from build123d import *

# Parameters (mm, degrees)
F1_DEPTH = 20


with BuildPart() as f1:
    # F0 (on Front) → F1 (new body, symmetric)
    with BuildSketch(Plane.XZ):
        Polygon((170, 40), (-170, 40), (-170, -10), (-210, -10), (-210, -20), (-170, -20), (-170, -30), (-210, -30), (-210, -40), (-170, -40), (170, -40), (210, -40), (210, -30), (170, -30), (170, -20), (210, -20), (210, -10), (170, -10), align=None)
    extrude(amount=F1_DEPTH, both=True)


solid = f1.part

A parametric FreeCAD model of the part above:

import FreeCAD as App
import Part
import Sketcher
Q = App.Units.Quantity

doc = App.newDocument("Part")
body = doc.addObject("PartDesign::Body", "Body")

sketch1 = body.newObject("Sketcher::SketchObject", "Sketch")
sketch1.AttachmentSupport = (doc.getObject("XZ_Plane"), [""])
sketch1.MapMode = "FlatFace"
sketch1.addGeometry([
    Part.LineSegment(App.Vector(170, 40, 0), App.Vector(-170, 40, 0)),
    Part.LineSegment(App.Vector(-170, 40, 0), App.Vector(-170, -10, 0)),
    Part.LineSegment(App.Vector(-170, -10, 0), App.Vector(-210, -10, 0)),
    Part.LineSegment(App.Vector(-210, -10, 0), App.Vector(-210, -20, 0)),
    Part.LineSegment(App.Vector(-210, -20, 0), App.Vector(-170, -20, 0)),
    Part.LineSegment(App.Vector(-170, -20, 0), App.Vector(-170, -30, 0)),
    Part.LineSegment(App.Vector(-170, -30, 0), App.Vector(-210, -30, 0)),
    Part.LineSegment(App.Vector(-210, -30, 0), App.Vector(-210, -40, 0)),
    Part.LineSegment(App.Vector(-210, -40, 0), App.Vector(210, -40, 0)),
    Part.LineSegment(App.Vector(210, -40, 0), App.Vector(210, -30, 0)),
    Part.LineSegment(App.Vector(210, -30, 0), App.Vector(170, -30, 0)),
    Part.LineSegment(App.Vector(170, -30, 0), App.Vector(170, -20, 0)),
    Part.LineSegment(App.Vector(170, -20, 0), App.Vector(210, -20, 0)),
    Part.LineSegment(App.Vector(210, -20, 0), App.Vector(210, -10, 0)),
    Part.LineSegment(App.Vector(210, -10, 0), App.Vector(170, -10, 0)),
    Part.LineSegment(App.Vector(170, -10, 0), App.Vector(170, 40, 0)),
], False)
sketch1.addConstraint([
    Sketcher.Constraint("Coincident", 0, 2, 1, 1),
    Sketcher.Constraint("Coincident", 1, 2, 2, 1),
    Sketcher.Constraint("Coincident", 2, 2, 3, 1),
    Sketcher.Constraint("Coincident", 3, 2, 4, 1),
    Sketcher.Constraint("Coincident", 4, 2, 5, 1),
    Sketcher.Constraint("Coincident", 5, 2, 6, 1),
    Sketcher.Constraint("Coincident", 6, 2, 7, 1),
    Sketcher.Constraint("Coincident", 7, 2, 8, 1),
    Sketcher.Constraint("Coincident", 8, 2, 9, 1),
    Sketcher.Constraint("Coincident", 9, 2, 10, 1),
    Sketcher.Constraint("Coincident", 10, 2, 11, 1),
    Sketcher.Constraint("Coincident", 11, 2, 12, 1),
    Sketcher.Constraint("Coincident", 12, 2, 13, 1),
    Sketcher.Constraint("Coincident", 13, 2, 14, 1),
    Sketcher.Constraint("Coincident", 14, 2, 15, 1),
    Sketcher.Constraint("Coincident", 15, 2, 0, 1),
    Sketcher.Constraint("Horizontal", 0),
    Sketcher.Constraint("Vertical", 1),
    Sketcher.Constraint("Horizontal", 2),
    Sketcher.Constraint("Vertical", 3),
    Sketcher.Constraint("Horizontal", 4),
    Sketcher.Constraint("Vertical", 5),
    Sketcher.Constraint("Horizontal", 6),
    Sketcher.Constraint("Vertical", 7),
    Sketcher.Constraint("Horizontal", 8),
    Sketcher.Constraint("Vertical", 9),
    Sketcher.Constraint("Horizontal", 10),
    Sketcher.Constraint("Vertical", 11),
    Sketcher.Constraint("Horizontal", 12),
    Sketcher.Constraint("Vertical", 13),
    Sketcher.Constraint("Horizontal", 14),
    Sketcher.Constraint("Vertical", 15),
    Sketcher.Constraint("Symmetric", 6, 2, 9, 2, -2),
    Sketcher.Constraint("Symmetric", 4, 2, 11, 2, -2),
    Sketcher.Constraint("Symmetric", 2, 2, 13, 2, -2),
    Sketcher.Constraint("Vertical", 1, 2, 4, 2),
    Sketcher.Constraint("Vertical", 3, 2, 6, 2),
    Sketcher.Constraint("Vertical", 11, 2, 14, 2),
    Sketcher.Constraint("Equal", 3, 5),
    Sketcher.Constraint("Equal", 5, 7),
    Sketcher.Constraint("DistanceX", 0, 2, 0, 1, Q("340 mm")),
    Sketcher.Constraint("DistanceX", 2, 2, 2, 1, Q("40 mm")),
    Sketcher.Constraint("DistanceY", 1, 2, 1, 1, Q("50 mm")),
    Sketcher.Constraint("DistanceY", 3, 2, 3, 1, Q("10 mm")),
    Sketcher.Constraint("DistanceY", -1, 1, 0, 2, Q("40 mm")),
])
pad1 = body.newObject("PartDesign::Pad", "Pad")
pad1.Profile = sketch1
pad1.Length = 40
pad1.Midplane = True

doc.recompute()
